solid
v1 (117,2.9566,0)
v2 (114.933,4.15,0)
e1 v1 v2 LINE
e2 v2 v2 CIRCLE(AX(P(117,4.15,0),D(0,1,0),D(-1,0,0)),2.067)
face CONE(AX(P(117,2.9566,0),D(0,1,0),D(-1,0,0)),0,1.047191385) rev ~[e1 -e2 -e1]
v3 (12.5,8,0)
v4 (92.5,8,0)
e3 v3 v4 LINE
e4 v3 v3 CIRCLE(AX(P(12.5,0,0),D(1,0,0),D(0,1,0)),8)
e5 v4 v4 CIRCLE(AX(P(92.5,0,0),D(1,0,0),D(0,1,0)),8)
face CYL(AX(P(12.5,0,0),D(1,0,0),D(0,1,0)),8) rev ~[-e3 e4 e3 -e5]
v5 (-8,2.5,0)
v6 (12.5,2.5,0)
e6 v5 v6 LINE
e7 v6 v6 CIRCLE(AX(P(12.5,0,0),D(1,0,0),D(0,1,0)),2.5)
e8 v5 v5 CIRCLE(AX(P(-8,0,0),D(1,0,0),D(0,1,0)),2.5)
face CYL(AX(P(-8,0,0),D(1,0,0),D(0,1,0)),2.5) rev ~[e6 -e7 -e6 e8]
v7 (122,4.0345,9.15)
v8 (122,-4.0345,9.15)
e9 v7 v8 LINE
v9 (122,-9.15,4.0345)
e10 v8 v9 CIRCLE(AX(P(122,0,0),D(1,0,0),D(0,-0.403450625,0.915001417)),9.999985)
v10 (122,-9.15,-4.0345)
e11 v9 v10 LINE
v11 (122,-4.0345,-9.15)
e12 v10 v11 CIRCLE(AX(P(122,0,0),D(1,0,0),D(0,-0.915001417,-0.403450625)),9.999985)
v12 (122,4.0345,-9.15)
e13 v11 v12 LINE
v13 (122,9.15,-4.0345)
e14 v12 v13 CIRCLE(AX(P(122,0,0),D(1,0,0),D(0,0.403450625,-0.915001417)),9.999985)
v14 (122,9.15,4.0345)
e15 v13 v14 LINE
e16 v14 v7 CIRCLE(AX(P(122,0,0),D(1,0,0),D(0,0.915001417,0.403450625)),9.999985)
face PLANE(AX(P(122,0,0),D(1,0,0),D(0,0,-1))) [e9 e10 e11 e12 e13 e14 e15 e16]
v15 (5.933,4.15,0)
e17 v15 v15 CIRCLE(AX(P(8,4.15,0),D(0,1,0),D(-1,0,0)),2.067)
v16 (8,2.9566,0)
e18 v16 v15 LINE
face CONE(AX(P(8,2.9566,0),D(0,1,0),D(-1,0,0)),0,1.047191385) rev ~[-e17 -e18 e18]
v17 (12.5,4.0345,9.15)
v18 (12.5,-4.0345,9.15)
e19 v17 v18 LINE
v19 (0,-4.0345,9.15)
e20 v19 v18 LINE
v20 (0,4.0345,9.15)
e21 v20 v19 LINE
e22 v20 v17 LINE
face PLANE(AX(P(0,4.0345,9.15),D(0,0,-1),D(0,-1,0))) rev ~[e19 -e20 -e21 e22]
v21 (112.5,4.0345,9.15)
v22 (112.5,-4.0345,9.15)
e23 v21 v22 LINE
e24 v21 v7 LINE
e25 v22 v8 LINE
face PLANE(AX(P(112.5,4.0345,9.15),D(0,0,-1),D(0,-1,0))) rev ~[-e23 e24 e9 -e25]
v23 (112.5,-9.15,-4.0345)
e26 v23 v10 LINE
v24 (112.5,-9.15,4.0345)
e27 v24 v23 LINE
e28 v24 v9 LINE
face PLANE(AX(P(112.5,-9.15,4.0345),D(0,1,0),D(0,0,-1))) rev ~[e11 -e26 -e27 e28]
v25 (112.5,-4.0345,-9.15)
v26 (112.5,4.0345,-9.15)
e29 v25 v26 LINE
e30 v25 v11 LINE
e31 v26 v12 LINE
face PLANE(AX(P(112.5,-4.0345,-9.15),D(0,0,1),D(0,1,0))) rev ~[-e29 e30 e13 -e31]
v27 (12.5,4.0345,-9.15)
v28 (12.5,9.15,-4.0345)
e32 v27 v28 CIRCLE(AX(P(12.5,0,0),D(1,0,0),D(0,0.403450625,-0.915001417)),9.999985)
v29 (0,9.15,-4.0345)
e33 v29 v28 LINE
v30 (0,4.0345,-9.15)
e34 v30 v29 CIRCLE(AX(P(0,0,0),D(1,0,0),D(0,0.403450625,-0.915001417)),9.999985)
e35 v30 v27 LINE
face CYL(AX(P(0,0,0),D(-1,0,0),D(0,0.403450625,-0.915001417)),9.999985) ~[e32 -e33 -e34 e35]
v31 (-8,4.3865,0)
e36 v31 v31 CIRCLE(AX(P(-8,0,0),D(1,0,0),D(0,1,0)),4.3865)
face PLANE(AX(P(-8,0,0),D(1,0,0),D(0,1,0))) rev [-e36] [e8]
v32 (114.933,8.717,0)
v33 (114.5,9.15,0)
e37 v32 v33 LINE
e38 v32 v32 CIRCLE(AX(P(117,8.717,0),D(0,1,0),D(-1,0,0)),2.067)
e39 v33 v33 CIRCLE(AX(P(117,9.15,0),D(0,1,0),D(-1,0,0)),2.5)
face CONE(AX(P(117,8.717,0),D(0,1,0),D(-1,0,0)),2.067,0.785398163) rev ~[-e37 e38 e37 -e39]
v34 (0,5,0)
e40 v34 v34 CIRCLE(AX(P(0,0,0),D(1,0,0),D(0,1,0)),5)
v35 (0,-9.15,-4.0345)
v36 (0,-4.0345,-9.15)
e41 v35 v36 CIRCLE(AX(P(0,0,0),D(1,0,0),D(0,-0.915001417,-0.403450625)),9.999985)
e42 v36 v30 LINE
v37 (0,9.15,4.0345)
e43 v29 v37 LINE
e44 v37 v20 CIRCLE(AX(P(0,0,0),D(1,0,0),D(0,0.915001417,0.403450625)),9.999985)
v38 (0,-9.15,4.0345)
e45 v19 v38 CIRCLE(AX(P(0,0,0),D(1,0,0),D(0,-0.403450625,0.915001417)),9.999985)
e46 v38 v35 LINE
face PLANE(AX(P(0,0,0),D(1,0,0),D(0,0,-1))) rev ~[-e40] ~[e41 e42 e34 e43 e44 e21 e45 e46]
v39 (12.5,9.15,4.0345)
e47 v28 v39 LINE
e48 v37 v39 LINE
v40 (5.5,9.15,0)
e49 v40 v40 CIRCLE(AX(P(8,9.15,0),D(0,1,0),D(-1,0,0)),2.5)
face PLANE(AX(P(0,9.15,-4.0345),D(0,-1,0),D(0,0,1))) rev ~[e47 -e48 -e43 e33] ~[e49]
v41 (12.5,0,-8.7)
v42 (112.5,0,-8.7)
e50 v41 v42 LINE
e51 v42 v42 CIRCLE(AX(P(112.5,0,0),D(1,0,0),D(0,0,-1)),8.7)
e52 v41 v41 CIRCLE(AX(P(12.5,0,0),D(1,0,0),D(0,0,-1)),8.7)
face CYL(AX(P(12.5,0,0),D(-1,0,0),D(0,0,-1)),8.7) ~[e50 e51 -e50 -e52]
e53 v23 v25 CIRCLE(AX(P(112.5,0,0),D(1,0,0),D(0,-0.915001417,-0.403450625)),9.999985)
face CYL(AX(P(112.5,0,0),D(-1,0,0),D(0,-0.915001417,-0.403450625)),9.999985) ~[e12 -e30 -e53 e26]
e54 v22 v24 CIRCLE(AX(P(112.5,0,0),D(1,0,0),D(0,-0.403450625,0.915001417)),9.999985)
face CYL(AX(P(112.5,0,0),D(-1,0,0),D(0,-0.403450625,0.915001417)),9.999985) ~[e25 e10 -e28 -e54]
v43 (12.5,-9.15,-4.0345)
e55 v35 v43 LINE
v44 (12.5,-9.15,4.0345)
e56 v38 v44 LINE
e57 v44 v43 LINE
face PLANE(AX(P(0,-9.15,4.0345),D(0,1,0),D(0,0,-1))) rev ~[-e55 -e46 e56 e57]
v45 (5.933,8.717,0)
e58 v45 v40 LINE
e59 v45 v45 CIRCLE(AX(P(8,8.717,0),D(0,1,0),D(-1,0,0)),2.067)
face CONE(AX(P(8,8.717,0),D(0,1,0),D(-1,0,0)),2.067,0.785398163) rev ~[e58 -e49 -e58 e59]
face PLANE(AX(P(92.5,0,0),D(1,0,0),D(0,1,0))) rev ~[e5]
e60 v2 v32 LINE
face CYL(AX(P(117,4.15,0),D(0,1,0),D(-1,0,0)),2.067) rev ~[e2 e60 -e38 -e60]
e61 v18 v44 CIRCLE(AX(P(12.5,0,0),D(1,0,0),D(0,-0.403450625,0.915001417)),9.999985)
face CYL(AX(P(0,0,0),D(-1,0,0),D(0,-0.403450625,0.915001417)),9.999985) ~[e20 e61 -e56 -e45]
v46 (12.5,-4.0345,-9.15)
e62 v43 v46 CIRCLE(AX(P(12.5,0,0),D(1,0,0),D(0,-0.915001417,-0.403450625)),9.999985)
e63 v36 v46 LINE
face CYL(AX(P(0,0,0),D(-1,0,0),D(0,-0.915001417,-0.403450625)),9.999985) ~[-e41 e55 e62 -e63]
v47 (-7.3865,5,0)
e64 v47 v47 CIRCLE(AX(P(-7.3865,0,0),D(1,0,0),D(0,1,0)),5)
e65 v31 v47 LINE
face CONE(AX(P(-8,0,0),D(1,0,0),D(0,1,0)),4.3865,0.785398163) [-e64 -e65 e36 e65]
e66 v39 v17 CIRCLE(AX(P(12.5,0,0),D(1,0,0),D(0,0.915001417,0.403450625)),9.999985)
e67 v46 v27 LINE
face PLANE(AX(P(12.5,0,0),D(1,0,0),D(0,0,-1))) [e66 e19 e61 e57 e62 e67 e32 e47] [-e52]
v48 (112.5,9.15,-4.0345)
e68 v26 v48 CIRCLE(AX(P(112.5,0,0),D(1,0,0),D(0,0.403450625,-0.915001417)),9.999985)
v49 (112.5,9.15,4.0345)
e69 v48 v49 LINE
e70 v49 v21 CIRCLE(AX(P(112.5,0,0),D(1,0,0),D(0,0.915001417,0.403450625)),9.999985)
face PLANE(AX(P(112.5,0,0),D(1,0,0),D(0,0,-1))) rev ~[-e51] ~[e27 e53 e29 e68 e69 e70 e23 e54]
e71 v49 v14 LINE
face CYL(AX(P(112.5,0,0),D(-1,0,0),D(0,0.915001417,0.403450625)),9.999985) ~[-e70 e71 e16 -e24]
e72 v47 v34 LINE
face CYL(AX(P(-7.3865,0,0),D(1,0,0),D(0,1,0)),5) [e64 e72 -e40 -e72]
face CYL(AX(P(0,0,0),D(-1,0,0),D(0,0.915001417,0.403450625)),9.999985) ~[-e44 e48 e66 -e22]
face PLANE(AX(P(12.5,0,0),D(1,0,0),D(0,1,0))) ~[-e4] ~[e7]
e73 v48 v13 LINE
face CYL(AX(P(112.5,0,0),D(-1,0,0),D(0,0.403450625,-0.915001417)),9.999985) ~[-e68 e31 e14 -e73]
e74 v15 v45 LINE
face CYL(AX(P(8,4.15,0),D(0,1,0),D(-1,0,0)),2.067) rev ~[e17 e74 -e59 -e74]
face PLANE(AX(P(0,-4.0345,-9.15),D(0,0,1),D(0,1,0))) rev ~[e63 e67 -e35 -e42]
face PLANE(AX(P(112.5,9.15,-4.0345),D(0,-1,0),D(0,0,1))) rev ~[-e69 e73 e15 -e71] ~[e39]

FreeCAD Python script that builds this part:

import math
import FreeCAD as App
import Part
import Sketcher
Q = App.Units.Quantity

doc = App.newDocument("Part")
body = doc.addObject("PartDesign::Body", "Body")

# Sketch on XY plane
sketch1 = doc.addObject("Sketcher::SketchObject", "Sketch")
body.addObject(sketch1)
sketch1.AttachmentSupport = (doc.XY_Plane, [""])
sketch1.MapMode = "FlatFace"
sketch1.addGeometry([
    Part.LineSegment(App.Vector(-8, 0, 0), App.Vector(0, 0, 0)),  # 0
    Part.LineSegment(App.Vector(0, 0, 0), App.Vector(0, 5, 0)),  # 1
    Part.LineSegment(App.Vector(0, 5, 0), App.Vector(-7.3865, 5, 0)),  # 2
    Part.LineSegment(App.Vector(-7.3865, 5, 0), App.Vector(-8, 4.3865, 0)),  # 3
    Part.LineSegment(App.Vector(-8, 4.3865, 0), App.Vector(-8, 0, 0)),  # 4
], False)
sketch1.addConstraint([
    Sketcher.Constraint("Coincident", 0, 2, 1, 1),
    Sketcher.Constraint("Coincident", 1, 2, 2, 1),
    Sketcher.Constraint("Coincident", 2, 2, 3, 1),
    Sketcher.Constraint("Coincident", 3, 2, 4, 1),
    Sketcher.Constraint("Coincident", 4, 2, 0, 1),
    Sketcher.Constraint("Horizontal", 0),
    Sketcher.Constraint("Vertical", 1),
    Sketcher.Constraint("Horizontal", 2),
    Sketcher.Constraint("Vertical", 4),
    Sketcher.Constraint("Coincident", 0, 2, -1, 1),
    Sketcher.Constraint("DistanceX", 0, 1, 0, 2, Q("8 mm")),
    Sketcher.Constraint("DistanceY", 1, 1, 1, 2, Q("5 mm")),
    Sketcher.Constraint("Angle", 3, Q("-135 deg")),
    Sketcher.Constraint("DistanceX", 2, 2, 2, 1, Q("7.3865 mm")),
])
revolution = doc.addObject("PartDesign::Revolution", "Revolution")
body.addObject(revolution)
revolution.Profile = sketch1
revolution.ReferenceAxis = (sketch1, ["H_Axis"])
revolution.Angle = 360

# Sketch on YZ plane
sketch2 = doc.addObject("Sketcher::SketchObject", "Sketch001")
body.addObject(sketch2)
sketch2.AttachmentSupport = (doc.YZ_Plane, [""])
sketch2.MapMode = "FlatFace"
sketch2.addGeometry([
    Part.ArcOfCircle(Part.Circle(App.Vector(0, 0, 0), App.Vector(0, 0, 1), 9.999985), math.radians(23.794072), math.radians(66.205928)),  # 0
    Part.LineSegment(App.Vector(4.0345, 9.15, 0), App.Vector(-4.0345, 9.15, 0)),  # 1
    Part.ArcOfCircle(Part.Circle(App.Vector(0, 0, 0), App.Vector(0, 0, 1), 9.999985), math.radians(113.794072), math.radians(156.205928)),  # 2
    Part.LineSegment(App.Vector(-9.15, 4.0345, 0), App.Vector(-9.15, -4.0345, 0)),  # 3
    Part.ArcOfCircle(Part.Circle(App.Vector(0, 0, 0), App.Vector(0, 0, 1), 9.999985), math.radians(-156.205928), math.radians(-113.794072)),  # 4
    Part.LineSegment(App.Vector(-4.0345, -9.15, 0), App.Vector(4.0345, -9.15, 0)),  # 5
    Part.ArcOfCircle(Part.Circle(App.Vector(0, 0, 0), App.Vector(0, 0, 1), 9.999985), math.radians(-66.205928), math.radians(-23.794072)),  # 6
    Part.LineSegment(App.Vector(9.15, -4.0345, 0), App.Vector(9.15, 4.0345, 0)),  # 7
], False)
sketch2.addConstraint([
    Sketcher.Constraint("Coincident", 0, 2, 1, 1),
    Sketcher.Constraint("Coincident", 1, 2, 2, 1),
    Sketcher.Constraint("Coincident", 2, 2, 3, 1),
    Sketcher.Constraint("Coincident", 3, 2, 4, 1),
    Sketcher.Constraint("Coincident", 4, 2, 5, 1),
    Sketcher.Constraint("Coincident", 5, 2, 6, 1),
    Sketcher.Constraint("Coincident", 6, 2, 7, 1),
    Sketcher.Constraint("Coincident", 7, 2, 0, 1),
    Sketcher.Constraint("Horizontal", 1),
    Sketcher.Constraint("Vertical", 3),
    Sketcher.Constraint("Horizontal", 5),
    Sketcher.Constraint("Vertical", 7),
    Sketcher.Constraint("Coincident", 0, 3, -1, 1),
    Sketcher.Constraint("Coincident", 2, 3, -1, 1),
    Sketcher.Constraint("Coincident", 4, 3, -1, 1),
    Sketcher.Constraint("Coincident", 6, 3, -1, 1),
    Sketcher.Constraint("Equal", 0, 2),
    Sketcher.Constraint("Equal", 2, 4),
    Sketcher.Constraint("Equal", 4, 6),
    Sketcher.Constraint("Horizontal", 3, 2, 6, 2),
    Sketcher.Constraint("Vertical", 1, 2, 4, 2),
    Sketcher.Constraint("Equal", 5, 3),
    Sketcher.Constraint("Radius", 0, Q("10 mm")),
    Sketcher.Constraint("DistanceX", 1, 2, 1, 1, Q("8.069 mm")),
])
pad1 = doc.addObject("PartDesign::Pad", "Pad")
body.addObject(pad1)
pad1.Profile = sketch2
pad1.Length = 12.5

# Sketch on YZ plane
sketch3 = doc.addObject("Sketcher::SketchObject", "Sketch002")
body.addObject(sketch3)
sketch3.AttachmentSupport = (doc.YZ_Plane, [""])
sketch3.MapMode = "FlatFace"
sketch3.AttachmentOffset = App.Placement(App.Vector(0, 0, 12.5), App.Rotation())
sketch3.addGeometry(Part.Circle(App.Vector(0, 0, 0), App.Vector(0, 0, 1), 8.7), False)
sketch3.addConstraint([
    Sketcher.Constraint("Coincident", 0, 3, -1, 1),
    Sketcher.Constraint("Diameter", 0, Q("17.4 mm")),
])
pad2 = doc.addObject("PartDesign::Pad", "Pad001")
body.addObject(pad2)
pad2.Profile = sketch3
pad2.Length = 100

# Sketch on YZ plane
sketch4 = doc.addObject("Sketcher::SketchObject", "Sketch003")
body.addObject(sketch4)
sketch4.AttachmentSupport = (doc.YZ_Plane, [""])
sketch4.MapMode = "FlatFace"
sketch4.AttachmentOffset = App.Placement(App.Vector(0, 0, 112.5), App.Rotation())
sketch4.addGeometry([
    Part.ArcOfCircle(Part.Circle(App.Vector(0, 0, 0), App.Vector(0, 0, 1), 9.999985), math.radians(23.794072), math.radians(66.205928)),  # 0
    Part.LineSegment(App.Vector(4.0345, 9.15, 0), App.Vector(-4.0345, 9.15, 0)),  # 1
    Part.ArcOfCircle(Part.Circle(App.Vector(0, 0, 0), App.Vector(0, 0, 1), 9.999985), math.radians(113.794072), math.radians(156.205928)),  # 2
    Part.LineSegment(App.Vector(-9.15, 4.0345, 0), App.Vector(-9.15, -4.0345, 0)),  # 3
    Part.ArcOfCircle(Part.Circle(App.Vector(0, 0, 0), App.Vector(0, 0, 1), 9.999985), math.radians(-156.205928), math.radians(-113.794072)),  # 4
    Part.LineSegment(App.Vector(-4.0345, -9.15, 0), App.Vector(4.0345, -9.15, 0)),  # 5
    Part.ArcOfCircle(Part.Circle(App.Vector(0, 0, 0), App.Vector(0, 0, 1), 9.999985), math.radians(-66.205928), math.radians(-23.794072)),  # 6
    Part.LineSegment(App.Vector(9.15, -4.0345, 0), App.Vector(9.15, 4.0345, 0)),  # 7
], False)
sketch4.addConstraint([
    Sketcher.Constraint("Coincident", 0, 2, 1, 1),
    Sketcher.Constraint("Coincident", 1, 2, 2, 1),
    Sketcher.Constraint("Coincident", 2, 2, 3, 1),
    Sketcher.Constraint("Coincident", 3, 2, 4, 1),
    Sketcher.Constraint("Coincident", 4, 2, 5, 1),
    Sketcher.Constraint("Coincident", 5, 2, 6, 1),
    Sketcher.Constraint("Coincident", 6, 2, 7, 1),
    Sketcher.Constraint("Coincident", 7, 2, 0, 1),
    Sketcher.Constraint("Horizontal", 1),
    Sketcher.Constraint("Vertical", 3),
    Sketcher.Constraint("Horizontal", 5),
    Sketcher.Constraint("Vertical", 7),
    Sketcher.Constraint("Coincident", 0, 3, -1, 1),
    Sketcher.Constraint("Coincident", 2, 3, -1, 1),
    Sketcher.Constraint("Coincident", 4, 3, -1, 1),
    Sketcher.Constraint("Coincident", 6, 3, -1, 1),
    Sketcher.Constraint("Equal", 0, 2),
    Sketcher.Constraint("Equal", 2, 4),
    Sketcher.Constraint("Equal", 4, 6),
    Sketcher.Constraint("Horizontal", 3, 2, 6, 2),
    Sketcher.Constraint("Vertical", 1, 2, 4, 2),
    Sketcher.Constraint("Equal", 5, 3),
    Sketcher.Constraint("Radius", 0, Q("10 mm")),
    Sketcher.Constraint("DistanceX", 1, 2, 1, 1, Q("8.069 mm")),
])
pad3 = doc.addObject("PartDesign::Pad", "Pad002")
body.addObject(pad3)
pad3.Profile = sketch4
pad3.Length = 9.5

# Sketch on XY plane
sketch5 = doc.addObject("Sketcher::SketchObject", "Sketch004")
body.addObject(sketch5)
sketch5.AttachmentSupport = (doc.XY_Plane, [""])
sketch5.MapMode = "FlatFace"
sketch5.addGeometry([
    Part.LineSegment(App.Vector(8, 2.9566, 0), App.Vector(8, 9.15, 0)),  # 0
    Part.LineSegment(App.Vector(8, 9.15, 0), App.Vector(5.5, 9.15, 0)),  # 1
    Part.LineSegment(App.Vector(5.5, 9.15, 0), App.Vector(5.933, 8.717, 0)),  # 2
    Part.LineSegment(App.Vector(5.933, 8.717, 0), App.Vector(5.933, 4.15, 0)),  # 3
    Part.LineSegment(App.Vector(5.933, 4.15, 0), App.Vector(8, 2.9566, 0)),  # 4
], False)
sketch5.addGeometry(Part.LineSegment(App.Vector(8, 2.9566, 0), App.Vector(8, 9.15, 0)), True)  # axis
sketch5.addConstraint([
    Sketcher.Constraint("Coincident", 0, 2, 1, 1),
    Sketcher.Constraint("Coincident", 1, 2, 2, 1),
    Sketcher.Constraint("Coincident", 2, 2, 3, 1),
    Sketcher.Constraint("Coincident", 3, 2, 4, 1),
    Sketcher.Constraint("Coincident", 4, 2, 0, 1),
    Sketcher.Constraint("Vertical", 0),
    Sketcher.Constraint("Horizontal", 1),
    Sketcher.Constraint("Vertical", 3),
    Sketcher.Constraint("Vertical", 5),
    Sketcher.Constraint("Coincident", 5, 1, 4, 2),
    Sketcher.Constraint("Horizontal", 1, 2, 5, 2),
    Sketcher.Constraint("Angle", 2, Q("-45 deg")),
    Sketcher.Constraint("Angle", 4, Q("-30.0004 deg")),
    Sketcher.Constraint("DistanceX", 1, 2, 1, 1, Q("2.5 mm")),
    Sketcher.Constraint("DistanceX", -1, 1, 0, 2, Q("8 mm")),
    Sketcher.Constraint("DistanceY", 3, 2, 1, 2, Q("5 mm")),
    Sketcher.Constraint("DistanceY", 3, 2, 3, 1, Q("4.567 mm")),
    Sketcher.Constraint("DistanceY", -1, 1, 0, 2, Q("9.15 mm")),
])
groove = doc.addObject("PartDesign::Groove", "Groove")
body.addObject(groove)
groove.Profile = sketch5
groove.ReferenceAxis = (sketch5, ["Axis0"])
groove.Angle = 360

# Sketch on XY plane
sketch6 = doc.addObject("Sketcher::SketchObject", "Sketch005")
body.addObject(sketch6)
sketch6.AttachmentSupport = (doc.XY_Plane, [""])
sketch6.MapMode = "FlatFace"
sketch6.addGeometry([
    Part.LineSegment(App.Vector(117, 2.9566, 0), App.Vector(117, 9.15, 0)),  # 0
    Part.LineSegment(App.Vector(117, 9.15, 0), App.Vector(114.5, 9.15, 0)),  # 1
    Part.LineSegment(App.Vector(114.5, 9.15, 0), App.Vector(114.933, 8.717, 0)),  # 2
    Part.LineSegment(App.Vector(114.933, 8.717, 0), App.Vector(114.933, 4.15, 0)),  # 3
    Part.LineSegment(App.Vector(114.933, 4.15, 0), App.Vector(117, 2.9566, 0)),  # 4
], False)
sketch6.addGeometry(Part.LineSegment(App.Vector(117, 2.9566, 0), App.Vector(117, 9.15, 0)), True)  # axis
sketch6.addConstraint([
    Sketcher.Constraint("Coincident", 0, 2, 1, 1),
    Sketcher.Constraint("Coincident", 1, 2, 2, 1),
    Sketcher.Constraint("Coincident", 2, 2, 3, 1),
    Sketcher.Constraint("Coincident", 3, 2, 4, 1),
    Sketcher.Constraint("Coincident", 4, 2, 0, 1),
    Sketcher.Constraint("Vertical", 0),
    Sketcher.Constraint("Horizontal", 1),
    Sketcher.Constraint("Vertical", 3),
    Sketcher.Constraint("Vertical", 5),
    Sketcher.Constraint("Coincident", 5, 1, 4, 2),
    Sketcher.Constraint("Horizontal", 1, 2, 5, 2),
    Sketcher.Constraint("Angle", 2, Q("-45 deg")),
    Sketcher.Constraint("Angle", 4, Q("-30.0004 deg")),
    Sketcher.Constraint("DistanceX", 1, 2, 1, 1, Q("2.5 mm")),
    Sketcher.Constraint("DistanceX", -1, 1, 0, 2, Q("117 mm")),
    Sketcher.Constraint("DistanceY", 3, 2, 1, 2, Q("5 mm")),
    Sketcher.Constraint("DistanceY", 3, 2, 3, 1, Q("4.567 mm")),
    Sketcher.Constraint("DistanceY", -1, 1, 0, 2, Q("9.15 mm")),
])
groove2 = doc.addObject("PartDesign::Groove", "Groove001")
body.addObject(groove2)
groove2.Profile = sketch6
groove2.ReferenceAxis = (sketch6, ["Axis0"])
groove2.Angle = 360

# Sketch on XY plane
sketch7 = doc.addObject("Sketcher::SketchObject", "Sketch006")
body.addObject(sketch7)
sketch7.AttachmentSupport = (doc.XY_Plane, [""])
sketch7.MapMode = "FlatFace"
sketch7.addGeometry([
    Part.LineSegment(App.Vector(-8, 0, 0), App.Vector(92.5, 0, 0)),  # 0
    Part.LineSegment(App.Vector(92.5, 0, 0), App.Vector(92.5, 8, 0)),  # 1
    Part.LineSegment(App.Vector(92.5, 8, 0), App.Vector(12.5, 8, 0)),  # 2
    Part.LineSegment(App.Vector(12.5, 8, 0), App.Vector(12.5, 2.5, 0)),  # 3
    Part.LineSegment(App.Vector(12.5, 2.5, 0), App.Vector(-8, 2.5, 0)),  # 4
    Part.LineSegment(App.Vector(-8, 2.5, 0), App.Vector(-8, 0, 0)),  # 5
], False)
sketch7.addConstraint([
    Sketcher.Constraint("Coincident", 0, 2, 1, 1),
    Sketcher.Constraint("Coincident", 1, 2, 2, 1),
    Sketcher.Constraint("Coincident", 2, 2, 3, 1),
    Sketcher.Constraint("Coincident", 3, 2, 4, 1),
    Sketcher.Constraint("Coincident", 4, 2, 5, 1),
    Sketcher.Constraint("Coincident", 5, 2, 0, 1),
    Sketcher.Constraint("Horizontal", 0),
    Sketcher.Constraint("Vertical", 1),
    Sketcher.Constraint("Horizontal", 2),
    Sketcher.Constraint("Vertical", 3),
    Sketcher.Constraint("Horizontal", 4),
    Sketcher.Constraint("Vertical", 5),
    Sketcher.Constraint("PointOnObject", 0, 2, -1),
    Sketcher.Constraint("DistanceX", 2, 2, 2, 1, Q("80 mm")),
    Sketcher.Constraint("DistanceY", 1, 1, 1, 2, Q("8 mm")),
    Sketcher.Constraint("DistanceX", 0, 1, 0, 2, Q("100.5 mm")),
    Sketcher.Constraint("DistanceY", 3, 2, 3, 1, Q("5.5 mm")),
    Sketcher.Constraint("DistanceX", 4, 2, -1, 1, Q("8 mm")),
])
groove3 = doc.addObject("PartDesign::Groove", "Groove002")
body.addObject(groove3)
groove3.Profile = sketch7
groove3.ReferenceAxis = (sketch7, ["H_Axis"])
groove3.Angle = 360

doc.recompute()
